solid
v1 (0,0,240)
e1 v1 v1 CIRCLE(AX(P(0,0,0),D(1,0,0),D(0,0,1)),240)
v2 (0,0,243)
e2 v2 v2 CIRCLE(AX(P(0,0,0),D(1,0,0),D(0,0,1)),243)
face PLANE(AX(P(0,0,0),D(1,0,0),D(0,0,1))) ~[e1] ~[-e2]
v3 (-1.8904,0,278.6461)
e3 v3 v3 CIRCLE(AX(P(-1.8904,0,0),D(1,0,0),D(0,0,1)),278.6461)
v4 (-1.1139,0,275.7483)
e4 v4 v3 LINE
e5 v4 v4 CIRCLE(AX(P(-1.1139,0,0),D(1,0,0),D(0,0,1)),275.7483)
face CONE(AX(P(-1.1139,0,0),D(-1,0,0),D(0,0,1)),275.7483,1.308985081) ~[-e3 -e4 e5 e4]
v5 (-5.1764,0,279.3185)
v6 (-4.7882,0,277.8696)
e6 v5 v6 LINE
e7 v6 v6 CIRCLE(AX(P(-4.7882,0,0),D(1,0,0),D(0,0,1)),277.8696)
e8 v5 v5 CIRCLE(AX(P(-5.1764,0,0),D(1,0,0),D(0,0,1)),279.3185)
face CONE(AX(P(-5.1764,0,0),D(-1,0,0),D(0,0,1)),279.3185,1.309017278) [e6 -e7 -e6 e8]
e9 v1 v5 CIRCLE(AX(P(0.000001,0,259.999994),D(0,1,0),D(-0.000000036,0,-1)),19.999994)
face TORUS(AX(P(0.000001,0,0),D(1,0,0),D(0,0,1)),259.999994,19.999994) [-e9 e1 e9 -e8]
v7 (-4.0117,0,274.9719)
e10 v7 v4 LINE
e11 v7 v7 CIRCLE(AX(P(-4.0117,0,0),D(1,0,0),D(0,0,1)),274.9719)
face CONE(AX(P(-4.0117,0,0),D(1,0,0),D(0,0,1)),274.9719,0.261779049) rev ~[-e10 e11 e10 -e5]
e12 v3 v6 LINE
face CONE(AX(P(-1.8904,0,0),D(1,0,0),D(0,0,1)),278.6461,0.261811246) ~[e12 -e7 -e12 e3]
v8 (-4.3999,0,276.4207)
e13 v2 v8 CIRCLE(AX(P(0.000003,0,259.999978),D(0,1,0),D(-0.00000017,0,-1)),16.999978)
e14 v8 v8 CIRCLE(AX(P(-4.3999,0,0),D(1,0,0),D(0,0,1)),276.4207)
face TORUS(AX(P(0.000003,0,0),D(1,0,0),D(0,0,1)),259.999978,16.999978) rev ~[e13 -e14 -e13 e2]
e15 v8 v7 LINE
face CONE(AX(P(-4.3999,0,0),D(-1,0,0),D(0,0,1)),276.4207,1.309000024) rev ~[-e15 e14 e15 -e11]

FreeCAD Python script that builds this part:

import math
import FreeCAD as App
import Part
import Sketcher
from FreeCAD import Vector
Q = App.Units.Quantity

doc = App.newDocument("Part")
body = doc.addObject("PartDesign::Body", "Body")

# Sketch on XZ plane
sketch1 = body.newObject("Sketcher::SketchObject", "Sketch")
sketch1.AttachmentSupport = (doc.getObject("XZ_Plane"), [""])
sketch1.MapMode = "FlatFace"
sketch1.addGeometry([
    Part.LineSegment(Vector(0, 243, 0), Vector(0, 240, 0)),  # 0
    Part.ArcOfCircle(Part.Circle(Vector(0, 260, 0), Vector(0, 0, 1), 20), math.radians(105), math.radians(270)),  # 1
    Part.LineSegment(Vector(-5.2, 279.3, 0), Vector(-4.8, 277.9, 0)),  # 2
    Part.LineSegment(Vector(-4.8, 277.9, 0), Vector(-1.9, 278.6, 0)),  # 3
    Part.LineSegment(Vector(-1.9, 278.6, 0), Vector(-1.1, 275.7, 0)),  # 4
    Part.LineSegment(Vector(-1.1, 275.7, 0), Vector(-4, 275, 0)),  # 5
    Part.LineSegment(Vector(-4, 275, 0), Vector(-4.4, 276.4, 0)),  # 6
    Part.ArcOfCircle(Part.Circle(Vector(0, 260, 0), Vector(0, 0, 1), 17), math.radians(105), math.radians(270)),  # 7
], False)
sketch1.addConstraint([
    Sketcher.Constraint("Coincident", 0, 2, 1, 2),
    Sketcher.Constraint("Coincident", 1, 1, 2, 1),
    Sketcher.Constraint("Coincident", 2, 2, 3, 1),
    Sketcher.Constraint("Coincident", 3, 2, 4, 1),
    Sketcher.Constraint("Coincident", 4, 2, 5, 1),
    Sketcher.Constraint("Coincident", 5, 2, 6, 1),
    Sketcher.Constraint("Coincident", 6, 2, 7, 1),
    Sketcher.Constraint("Coincident", 7, 2, 0, 1),
    Sketcher.Constraint("Vertical", 0),
    Sketcher.Constraint("Coincident", 7, 3, 1, 3),
    Sketcher.Constraint("PointOnObject", 1, 3, -2),
    Sketcher.Constraint("PointOnObject", 0, 2, -2),
    Sketcher.Constraint("Perpendicular", 2, 3),
    Sketcher.Constraint("Perpendicular", 3, 4),
    Sketcher.Constraint("Perpendicular", 4, 5),
    Sketcher.Constraint("Perpendicular", 5, 6),
    Sketcher.Constraint("Equal", 3, 4),
    Sketcher.Constraint("Equal", 4, 5),
    Sketcher.Constraint("Equal", 2, 6),
    Sketcher.Constraint("Radius", 1, 20.0),
    Sketcher.Constraint("Radius", 7, 17.0),
    Sketcher.Constraint("DistanceY", -1, 1, 1, 3, 260.0),
    Sketcher.Constraint("Angle", 2, Q("-75.0012 deg")),
    Sketcher.Constraint("Distance", 2, 1.5),
    Sketcher.Constraint("DistanceX", 6, 2, -1, 1, 4.4),
])
revolution = body.newObject("PartDesign::Revolution", "Revolution")
revolution.Profile = sketch1
revolution.ReferenceAxis = (sketch1, ["H_Axis"])
revolution.Angle = 360

doc.recompute()
